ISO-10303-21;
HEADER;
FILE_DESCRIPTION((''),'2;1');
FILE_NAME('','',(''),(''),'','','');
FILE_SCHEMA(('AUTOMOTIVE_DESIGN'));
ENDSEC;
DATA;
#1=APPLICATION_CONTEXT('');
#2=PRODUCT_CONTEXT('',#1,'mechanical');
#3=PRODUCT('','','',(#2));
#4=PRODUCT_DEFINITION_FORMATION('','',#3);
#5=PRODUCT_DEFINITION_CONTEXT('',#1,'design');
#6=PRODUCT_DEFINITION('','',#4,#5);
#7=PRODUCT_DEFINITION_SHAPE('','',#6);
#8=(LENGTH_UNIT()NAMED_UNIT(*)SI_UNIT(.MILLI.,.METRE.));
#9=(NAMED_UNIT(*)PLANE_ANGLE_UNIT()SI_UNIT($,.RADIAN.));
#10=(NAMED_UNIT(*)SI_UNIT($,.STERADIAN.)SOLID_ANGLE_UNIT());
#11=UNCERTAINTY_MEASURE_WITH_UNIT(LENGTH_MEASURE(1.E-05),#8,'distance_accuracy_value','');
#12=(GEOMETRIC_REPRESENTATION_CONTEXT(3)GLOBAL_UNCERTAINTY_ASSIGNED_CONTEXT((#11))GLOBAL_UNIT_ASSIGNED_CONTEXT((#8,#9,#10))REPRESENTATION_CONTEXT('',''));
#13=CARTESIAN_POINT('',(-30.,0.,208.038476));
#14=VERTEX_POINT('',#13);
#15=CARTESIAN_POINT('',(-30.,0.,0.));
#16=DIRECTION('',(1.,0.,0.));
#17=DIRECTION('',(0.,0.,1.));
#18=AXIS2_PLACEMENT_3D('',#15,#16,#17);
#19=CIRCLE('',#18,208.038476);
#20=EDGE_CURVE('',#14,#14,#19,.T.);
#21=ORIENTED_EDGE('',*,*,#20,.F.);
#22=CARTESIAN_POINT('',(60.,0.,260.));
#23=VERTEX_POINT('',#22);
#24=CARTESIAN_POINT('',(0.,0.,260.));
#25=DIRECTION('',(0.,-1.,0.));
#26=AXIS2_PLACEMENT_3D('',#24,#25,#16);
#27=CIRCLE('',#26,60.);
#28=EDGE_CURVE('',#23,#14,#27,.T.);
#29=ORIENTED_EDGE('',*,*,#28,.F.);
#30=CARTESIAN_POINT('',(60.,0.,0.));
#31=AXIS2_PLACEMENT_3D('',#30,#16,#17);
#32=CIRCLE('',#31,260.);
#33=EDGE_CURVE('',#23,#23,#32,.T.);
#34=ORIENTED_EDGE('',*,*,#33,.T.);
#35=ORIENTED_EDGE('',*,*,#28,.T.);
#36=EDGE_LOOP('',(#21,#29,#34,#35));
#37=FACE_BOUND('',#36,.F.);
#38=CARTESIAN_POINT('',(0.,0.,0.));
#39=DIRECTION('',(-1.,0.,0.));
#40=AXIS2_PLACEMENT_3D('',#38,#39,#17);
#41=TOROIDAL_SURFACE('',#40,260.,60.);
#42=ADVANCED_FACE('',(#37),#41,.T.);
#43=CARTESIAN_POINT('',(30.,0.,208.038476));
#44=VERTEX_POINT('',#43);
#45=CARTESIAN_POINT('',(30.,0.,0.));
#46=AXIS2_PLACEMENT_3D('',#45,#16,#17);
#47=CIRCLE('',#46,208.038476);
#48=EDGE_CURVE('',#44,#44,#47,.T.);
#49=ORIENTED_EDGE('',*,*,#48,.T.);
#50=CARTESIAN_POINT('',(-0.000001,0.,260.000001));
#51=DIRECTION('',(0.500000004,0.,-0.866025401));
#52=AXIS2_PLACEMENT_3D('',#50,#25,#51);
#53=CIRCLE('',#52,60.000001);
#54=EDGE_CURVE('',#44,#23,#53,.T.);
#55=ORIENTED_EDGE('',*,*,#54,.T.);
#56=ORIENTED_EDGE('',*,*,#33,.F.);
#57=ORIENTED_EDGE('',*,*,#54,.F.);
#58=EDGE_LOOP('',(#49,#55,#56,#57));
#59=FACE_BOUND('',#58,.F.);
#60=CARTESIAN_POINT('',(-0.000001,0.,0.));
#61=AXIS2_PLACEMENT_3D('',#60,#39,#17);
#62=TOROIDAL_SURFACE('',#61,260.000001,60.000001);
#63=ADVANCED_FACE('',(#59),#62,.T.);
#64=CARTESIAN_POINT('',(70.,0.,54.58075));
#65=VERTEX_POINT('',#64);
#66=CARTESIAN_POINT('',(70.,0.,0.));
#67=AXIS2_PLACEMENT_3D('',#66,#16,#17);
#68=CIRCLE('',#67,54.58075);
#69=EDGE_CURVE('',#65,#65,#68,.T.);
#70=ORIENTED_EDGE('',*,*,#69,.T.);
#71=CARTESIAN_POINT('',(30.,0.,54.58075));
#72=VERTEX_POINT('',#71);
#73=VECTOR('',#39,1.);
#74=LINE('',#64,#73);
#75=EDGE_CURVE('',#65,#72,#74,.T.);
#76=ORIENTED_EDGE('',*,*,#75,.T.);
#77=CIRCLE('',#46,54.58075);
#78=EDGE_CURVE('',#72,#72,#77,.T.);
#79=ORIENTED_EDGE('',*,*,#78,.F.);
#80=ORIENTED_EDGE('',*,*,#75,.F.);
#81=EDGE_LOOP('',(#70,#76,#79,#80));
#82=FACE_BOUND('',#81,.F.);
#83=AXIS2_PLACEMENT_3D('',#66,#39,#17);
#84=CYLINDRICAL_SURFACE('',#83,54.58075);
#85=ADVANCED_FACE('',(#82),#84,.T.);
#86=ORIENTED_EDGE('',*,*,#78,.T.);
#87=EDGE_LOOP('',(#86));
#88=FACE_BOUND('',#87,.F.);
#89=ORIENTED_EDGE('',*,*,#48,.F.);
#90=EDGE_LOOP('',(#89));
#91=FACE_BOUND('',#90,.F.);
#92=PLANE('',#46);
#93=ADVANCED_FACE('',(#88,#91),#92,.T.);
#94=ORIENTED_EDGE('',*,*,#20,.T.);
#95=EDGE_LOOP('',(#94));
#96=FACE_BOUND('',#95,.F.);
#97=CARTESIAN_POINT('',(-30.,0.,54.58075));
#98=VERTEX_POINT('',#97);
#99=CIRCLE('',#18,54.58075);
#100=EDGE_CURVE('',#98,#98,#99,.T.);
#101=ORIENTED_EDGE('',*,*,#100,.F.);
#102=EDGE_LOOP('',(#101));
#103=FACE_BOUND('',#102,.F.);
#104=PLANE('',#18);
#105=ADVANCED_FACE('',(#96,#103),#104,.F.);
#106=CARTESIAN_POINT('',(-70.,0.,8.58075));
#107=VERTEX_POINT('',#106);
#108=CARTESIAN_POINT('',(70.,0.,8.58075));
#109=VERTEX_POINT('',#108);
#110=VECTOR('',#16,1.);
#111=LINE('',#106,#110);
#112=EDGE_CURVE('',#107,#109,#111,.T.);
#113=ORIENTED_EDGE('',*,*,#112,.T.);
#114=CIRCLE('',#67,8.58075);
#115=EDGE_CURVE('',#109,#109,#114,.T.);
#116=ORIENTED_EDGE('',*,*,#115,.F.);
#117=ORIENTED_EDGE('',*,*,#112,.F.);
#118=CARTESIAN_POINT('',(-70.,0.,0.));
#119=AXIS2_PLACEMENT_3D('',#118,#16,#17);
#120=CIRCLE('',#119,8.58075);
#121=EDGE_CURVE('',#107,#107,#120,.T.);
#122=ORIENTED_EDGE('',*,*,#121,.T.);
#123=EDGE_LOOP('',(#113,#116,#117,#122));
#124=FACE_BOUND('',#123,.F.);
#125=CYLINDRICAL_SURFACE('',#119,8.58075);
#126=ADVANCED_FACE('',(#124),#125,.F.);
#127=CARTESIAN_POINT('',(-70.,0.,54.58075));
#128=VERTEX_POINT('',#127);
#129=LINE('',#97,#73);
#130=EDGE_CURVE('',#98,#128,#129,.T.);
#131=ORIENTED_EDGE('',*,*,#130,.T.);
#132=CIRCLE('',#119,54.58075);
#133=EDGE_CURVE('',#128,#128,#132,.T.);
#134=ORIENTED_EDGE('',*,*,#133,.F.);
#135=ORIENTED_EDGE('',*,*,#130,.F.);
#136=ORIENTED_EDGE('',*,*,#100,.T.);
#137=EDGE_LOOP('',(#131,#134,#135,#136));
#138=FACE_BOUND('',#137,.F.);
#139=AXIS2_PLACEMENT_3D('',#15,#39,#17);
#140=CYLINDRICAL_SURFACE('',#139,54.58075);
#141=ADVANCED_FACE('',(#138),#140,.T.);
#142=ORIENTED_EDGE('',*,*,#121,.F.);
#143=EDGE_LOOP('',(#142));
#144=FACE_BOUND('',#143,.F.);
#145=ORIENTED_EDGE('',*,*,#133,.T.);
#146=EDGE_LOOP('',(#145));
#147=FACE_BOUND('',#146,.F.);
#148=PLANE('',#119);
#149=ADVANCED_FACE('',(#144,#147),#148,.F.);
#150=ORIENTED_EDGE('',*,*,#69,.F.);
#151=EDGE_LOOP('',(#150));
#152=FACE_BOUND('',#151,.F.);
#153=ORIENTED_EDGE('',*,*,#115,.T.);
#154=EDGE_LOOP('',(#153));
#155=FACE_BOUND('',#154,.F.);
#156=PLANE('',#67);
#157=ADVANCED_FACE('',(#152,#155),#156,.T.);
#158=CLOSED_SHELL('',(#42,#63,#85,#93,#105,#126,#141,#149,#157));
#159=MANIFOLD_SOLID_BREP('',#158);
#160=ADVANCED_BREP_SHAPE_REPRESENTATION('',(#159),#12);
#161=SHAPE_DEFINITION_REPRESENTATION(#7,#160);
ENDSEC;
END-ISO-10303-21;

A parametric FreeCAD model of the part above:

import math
import FreeCAD as App
import Part
import Sketcher

doc = App.newDocument("Part")
params = doc.addObject("Spreadsheet::Sheet", "Params")
for row, (alias, value) in enumerate([
    ("sketch1_radius", "60.000001 mm"),
    ("sketch1_width", "140 mm"),
    ("sketch1_width2", "40 mm"),
    ("sketch1_height", "46 mm"),
    ("revolution_angle", "360 deg"),
    ("sketch2_radius", "10 mm"),
    ("sketch2_radius2", "9.999998 mm"),
    ("pad1_length", "25 mm"),
], start=1):
    params.set(f"A{row}", alias)
    params.set(f"B{row}", "=" + value)
    params.setAlias(f"B{row}", alias)

body = doc.addObject("PartDesign::Body", "Body")

sketch1 = body.newObject("Sketcher::SketchObject", "Sketch")
sketch1.AttachmentSupport = (doc.getObject("XZ_Plane"), [""])
sketch1.MapMode = "FlatFace"
sketch1.addGeometry([
    Part.LineSegment(App.Vector(-70, 54.58075, 0), App.Vector(-70, 8.58075, 0)),
    Part.LineSegment(App.Vector(-70, 8.58075, 0), App.Vector(70, 8.58075, 0)),
    Part.LineSegment(App.Vector(70, 8.58075, 0), App.Vector(70, 54.58075, 0)),
    Part.LineSegment(App.Vector(70, 54.58075, 0), App.Vector(30, 54.58075, 0)),
    Part.LineSegment(App.Vector(30, 54.58075, 0), App.Vector(30, 208.038476, 0)),
    Part.ArcOfCircle(Part.Circle(App.Vector(-0.000001, 260.000001, 0), App.Vector(0, 0, 1), 60.000001), math.radians(-60), math.radians(-0.000001)),
    Part.ArcOfCircle(Part.Circle(App.Vector(0, 260, 0), App.Vector(0, 0, 1), 60), math.radians(0), math.radians(240)),
    Part.LineSegment(App.Vector(-30, 208.038476, 0), App.Vector(-30, 54.58075, 0)),
    Part.LineSegment(App.Vector(-30, 54.58075, 0), App.Vector(-70, 54.58075, 0)),
], False)
sketch1.addConstraint([
    Sketcher.Constraint("Coincident", 0, 2, 1, 1),
    Sketcher.Constraint("Coincident", 1, 2, 2, 1),
    Sketcher.Constraint("Coincident", 2, 2, 3, 1),
    Sketcher.Constraint("Coincident", 3, 2, 4, 1),
    Sketcher.Constraint("Coincident", 4, 2, 5, 1),
    Sketcher.Constraint("Tangent", 5, 2, 6, 1),
    Sketcher.Constraint("Coincident", 6, 2, 7, 1),
    Sketcher.Constraint("Coincident", 7, 2, 8, 1),
    Sketcher.Constraint("Coincident", 8, 2, 0, 1),
    Sketcher.Constraint("Vertical", 0),
    Sketcher.Constraint("Horizontal", 1),
    Sketcher.Constraint("Vertical", 2),
    Sketcher.Constraint("Horizontal", 3),
    Sketcher.Constraint("Vertical", 4),
    Sketcher.Constraint("Vertical", 7),
    Sketcher.Constraint("Horizontal", 8),
    Sketcher.Constraint("Equal", 5, 6),
    Sketcher.Constraint("Symmetric", 4, 2, 6, 2, -2),
    Sketcher.Constraint("Symmetric", 2, 2, 8, 2, -2),
    Sketcher.Constraint("Horizontal", 6, 3, 5, 2),
    Sketcher.Constraint("Radius", 5, 60.000001),
    Sketcher.Constraint("DistanceX", 1, 1, 1, 2, 140.0),
    Sketcher.Constraint("DistanceX", 3, 2, 3, 1, 40.0),
    Sketcher.Constraint("DistanceY", 0, 2, 0, 1, 46.0),
    Sketcher.Constraint("DistanceY", -1, 1, 5, 3, 260.000001),
    Sketcher.Constraint("DistanceY", 4, 1, 4, 2, 153.457726),
])
sketch1.setExpression("Constraints[20]", "Params.sketch1_radius")
sketch1.setExpression("Constraints[21]", "Params.sketch1_width")
sketch1.setExpression("Constraints[22]", "Params.sketch1_width2")
sketch1.setExpression("Constraints[23]", "Params.sketch1_height")
revolution = body.newObject("PartDesign::Revolution", "Revolution")
revolution.Profile = sketch1
revolution.ReferenceAxis = (sketch1, ["H_Axis"])
revolution.setExpression("Angle", "Params.revolution_angle")

sketch2 = body.newObject("Sketcher::SketchObject", "Sketch001")
sketch2.AttachmentSupport = (doc.getObject("YZ_Plane"), [""])
sketch2.MapMode = "FlatFace"
sketch2.AttachmentOffset = App.Placement(App.Vector(0, 0, -30), App.Rotation())
sketch2.addGeometry([
    Part.ArcOfCircle(Part.Circle(App.Vector(52.633589, 178.437719, 0), App.Vector(0, 0, 1), 10), math.radians(-25.714281), math.radians(73.565578)),
    Part.LineSegment(App.Vector(61.643278, 174.098882, 0), App.Vector(12.55207, 72.159939, 0)),
    Part.ArcOfCircle(Part.Circle(App.Vector(3.542383, 76.498775, 0), App.Vector(0, 0, 1), 9.999998), math.radians(-92.651275), math.radians(-25.714281)),
    Part.ArcOfCircle(Part.Circle(App.Vector(0, -0.000284, 0), App.Vector(0, 0, 1), 66.581034), math.radians(87.348745), math.radians(92.651255)),
    Part.ArcOfCircle(Part.Circle(App.Vector(-3.542383, 76.498775, 0), App.Vector(0, 0, 1), 9.999998), math.radians(-154.285719), math.radians(-87.348725)),
    Part.LineSegment(App.Vector(-12.55207, 72.159939, 0), App.Vector(-61.643278, 174.098882, 0)),
    Part.ArcOfCircle(Part.Circle(App.Vector(-52.633589, 178.437719, 0), App.Vector(0, 0, 1), 10), math.radians(106.434422), math.radians(205.714281)),
    Part.ArcOfCircle(Part.Circle(App.Vector(0, 0.000017, 0), App.Vector(0, 0, 1), 196.038459), math.radians(73.565575), math.radians(106.434425)),
], False)
sketch2.addConstraint([
    Sketcher.Constraint("Tangent", 0, 1, 1, 1),
    Sketcher.Constraint("Tangent", 1, 2, 2, 2),
    Sketcher.Constraint("Tangent", 2, 1, 3, 1),
    Sketcher.Constraint("Tangent", 3, 2, 4, 2),
    Sketcher.Constraint("Tangent", 4, 1, 5, 1),
    Sketcher.Constraint("Tangent", 5, 2, 6, 2),
    Sketcher.Constraint("Tangent", 6, 1, 7, 2),
    Sketcher.Constraint("Tangent", 7, 1, 0, 2),
    Sketcher.Constraint("Equal", 2, 4),
    Sketcher.Constraint("Equal", 0, 6),
    Sketcher.Constraint("Symmetric", 2, 3, 4, 3, -2),
    Sketcher.Constraint("Symmetric", 0, 3, 6, 3, -2),
    Sketcher.Constraint("Radius", 0, 10.0),
    Sketcher.Constraint("Radius", 2, 9.999998),
    Sketcher.Constraint("Radius", 7, 196.038459),
    Sketcher.Constraint("Radius", 3, 66.581034),
    Sketcher.Constraint("DistanceY", 3, 3, 7, 3, 0.000301),
    Sketcher.Constraint("DistanceY", 7, 3, 0, 3, 178.437702),
    Sketcher.Constraint("Distance", 1, 113.143691),
    Sketcher.Constraint("DistanceY", -1, 1, 0, 3, 178.437719),
])
sketch2.setExpression("Constraints[12]", "Params.sketch2_radius")
sketch2.setExpression("Constraints[13]", "Params.sketch2_radius2")
pad1 = body.newObject("PartDesign::Pad", "Pad")
pad1.Profile = sketch2
pad1.setExpression("Length", "Params.pad1_length")

doc.recompute()
